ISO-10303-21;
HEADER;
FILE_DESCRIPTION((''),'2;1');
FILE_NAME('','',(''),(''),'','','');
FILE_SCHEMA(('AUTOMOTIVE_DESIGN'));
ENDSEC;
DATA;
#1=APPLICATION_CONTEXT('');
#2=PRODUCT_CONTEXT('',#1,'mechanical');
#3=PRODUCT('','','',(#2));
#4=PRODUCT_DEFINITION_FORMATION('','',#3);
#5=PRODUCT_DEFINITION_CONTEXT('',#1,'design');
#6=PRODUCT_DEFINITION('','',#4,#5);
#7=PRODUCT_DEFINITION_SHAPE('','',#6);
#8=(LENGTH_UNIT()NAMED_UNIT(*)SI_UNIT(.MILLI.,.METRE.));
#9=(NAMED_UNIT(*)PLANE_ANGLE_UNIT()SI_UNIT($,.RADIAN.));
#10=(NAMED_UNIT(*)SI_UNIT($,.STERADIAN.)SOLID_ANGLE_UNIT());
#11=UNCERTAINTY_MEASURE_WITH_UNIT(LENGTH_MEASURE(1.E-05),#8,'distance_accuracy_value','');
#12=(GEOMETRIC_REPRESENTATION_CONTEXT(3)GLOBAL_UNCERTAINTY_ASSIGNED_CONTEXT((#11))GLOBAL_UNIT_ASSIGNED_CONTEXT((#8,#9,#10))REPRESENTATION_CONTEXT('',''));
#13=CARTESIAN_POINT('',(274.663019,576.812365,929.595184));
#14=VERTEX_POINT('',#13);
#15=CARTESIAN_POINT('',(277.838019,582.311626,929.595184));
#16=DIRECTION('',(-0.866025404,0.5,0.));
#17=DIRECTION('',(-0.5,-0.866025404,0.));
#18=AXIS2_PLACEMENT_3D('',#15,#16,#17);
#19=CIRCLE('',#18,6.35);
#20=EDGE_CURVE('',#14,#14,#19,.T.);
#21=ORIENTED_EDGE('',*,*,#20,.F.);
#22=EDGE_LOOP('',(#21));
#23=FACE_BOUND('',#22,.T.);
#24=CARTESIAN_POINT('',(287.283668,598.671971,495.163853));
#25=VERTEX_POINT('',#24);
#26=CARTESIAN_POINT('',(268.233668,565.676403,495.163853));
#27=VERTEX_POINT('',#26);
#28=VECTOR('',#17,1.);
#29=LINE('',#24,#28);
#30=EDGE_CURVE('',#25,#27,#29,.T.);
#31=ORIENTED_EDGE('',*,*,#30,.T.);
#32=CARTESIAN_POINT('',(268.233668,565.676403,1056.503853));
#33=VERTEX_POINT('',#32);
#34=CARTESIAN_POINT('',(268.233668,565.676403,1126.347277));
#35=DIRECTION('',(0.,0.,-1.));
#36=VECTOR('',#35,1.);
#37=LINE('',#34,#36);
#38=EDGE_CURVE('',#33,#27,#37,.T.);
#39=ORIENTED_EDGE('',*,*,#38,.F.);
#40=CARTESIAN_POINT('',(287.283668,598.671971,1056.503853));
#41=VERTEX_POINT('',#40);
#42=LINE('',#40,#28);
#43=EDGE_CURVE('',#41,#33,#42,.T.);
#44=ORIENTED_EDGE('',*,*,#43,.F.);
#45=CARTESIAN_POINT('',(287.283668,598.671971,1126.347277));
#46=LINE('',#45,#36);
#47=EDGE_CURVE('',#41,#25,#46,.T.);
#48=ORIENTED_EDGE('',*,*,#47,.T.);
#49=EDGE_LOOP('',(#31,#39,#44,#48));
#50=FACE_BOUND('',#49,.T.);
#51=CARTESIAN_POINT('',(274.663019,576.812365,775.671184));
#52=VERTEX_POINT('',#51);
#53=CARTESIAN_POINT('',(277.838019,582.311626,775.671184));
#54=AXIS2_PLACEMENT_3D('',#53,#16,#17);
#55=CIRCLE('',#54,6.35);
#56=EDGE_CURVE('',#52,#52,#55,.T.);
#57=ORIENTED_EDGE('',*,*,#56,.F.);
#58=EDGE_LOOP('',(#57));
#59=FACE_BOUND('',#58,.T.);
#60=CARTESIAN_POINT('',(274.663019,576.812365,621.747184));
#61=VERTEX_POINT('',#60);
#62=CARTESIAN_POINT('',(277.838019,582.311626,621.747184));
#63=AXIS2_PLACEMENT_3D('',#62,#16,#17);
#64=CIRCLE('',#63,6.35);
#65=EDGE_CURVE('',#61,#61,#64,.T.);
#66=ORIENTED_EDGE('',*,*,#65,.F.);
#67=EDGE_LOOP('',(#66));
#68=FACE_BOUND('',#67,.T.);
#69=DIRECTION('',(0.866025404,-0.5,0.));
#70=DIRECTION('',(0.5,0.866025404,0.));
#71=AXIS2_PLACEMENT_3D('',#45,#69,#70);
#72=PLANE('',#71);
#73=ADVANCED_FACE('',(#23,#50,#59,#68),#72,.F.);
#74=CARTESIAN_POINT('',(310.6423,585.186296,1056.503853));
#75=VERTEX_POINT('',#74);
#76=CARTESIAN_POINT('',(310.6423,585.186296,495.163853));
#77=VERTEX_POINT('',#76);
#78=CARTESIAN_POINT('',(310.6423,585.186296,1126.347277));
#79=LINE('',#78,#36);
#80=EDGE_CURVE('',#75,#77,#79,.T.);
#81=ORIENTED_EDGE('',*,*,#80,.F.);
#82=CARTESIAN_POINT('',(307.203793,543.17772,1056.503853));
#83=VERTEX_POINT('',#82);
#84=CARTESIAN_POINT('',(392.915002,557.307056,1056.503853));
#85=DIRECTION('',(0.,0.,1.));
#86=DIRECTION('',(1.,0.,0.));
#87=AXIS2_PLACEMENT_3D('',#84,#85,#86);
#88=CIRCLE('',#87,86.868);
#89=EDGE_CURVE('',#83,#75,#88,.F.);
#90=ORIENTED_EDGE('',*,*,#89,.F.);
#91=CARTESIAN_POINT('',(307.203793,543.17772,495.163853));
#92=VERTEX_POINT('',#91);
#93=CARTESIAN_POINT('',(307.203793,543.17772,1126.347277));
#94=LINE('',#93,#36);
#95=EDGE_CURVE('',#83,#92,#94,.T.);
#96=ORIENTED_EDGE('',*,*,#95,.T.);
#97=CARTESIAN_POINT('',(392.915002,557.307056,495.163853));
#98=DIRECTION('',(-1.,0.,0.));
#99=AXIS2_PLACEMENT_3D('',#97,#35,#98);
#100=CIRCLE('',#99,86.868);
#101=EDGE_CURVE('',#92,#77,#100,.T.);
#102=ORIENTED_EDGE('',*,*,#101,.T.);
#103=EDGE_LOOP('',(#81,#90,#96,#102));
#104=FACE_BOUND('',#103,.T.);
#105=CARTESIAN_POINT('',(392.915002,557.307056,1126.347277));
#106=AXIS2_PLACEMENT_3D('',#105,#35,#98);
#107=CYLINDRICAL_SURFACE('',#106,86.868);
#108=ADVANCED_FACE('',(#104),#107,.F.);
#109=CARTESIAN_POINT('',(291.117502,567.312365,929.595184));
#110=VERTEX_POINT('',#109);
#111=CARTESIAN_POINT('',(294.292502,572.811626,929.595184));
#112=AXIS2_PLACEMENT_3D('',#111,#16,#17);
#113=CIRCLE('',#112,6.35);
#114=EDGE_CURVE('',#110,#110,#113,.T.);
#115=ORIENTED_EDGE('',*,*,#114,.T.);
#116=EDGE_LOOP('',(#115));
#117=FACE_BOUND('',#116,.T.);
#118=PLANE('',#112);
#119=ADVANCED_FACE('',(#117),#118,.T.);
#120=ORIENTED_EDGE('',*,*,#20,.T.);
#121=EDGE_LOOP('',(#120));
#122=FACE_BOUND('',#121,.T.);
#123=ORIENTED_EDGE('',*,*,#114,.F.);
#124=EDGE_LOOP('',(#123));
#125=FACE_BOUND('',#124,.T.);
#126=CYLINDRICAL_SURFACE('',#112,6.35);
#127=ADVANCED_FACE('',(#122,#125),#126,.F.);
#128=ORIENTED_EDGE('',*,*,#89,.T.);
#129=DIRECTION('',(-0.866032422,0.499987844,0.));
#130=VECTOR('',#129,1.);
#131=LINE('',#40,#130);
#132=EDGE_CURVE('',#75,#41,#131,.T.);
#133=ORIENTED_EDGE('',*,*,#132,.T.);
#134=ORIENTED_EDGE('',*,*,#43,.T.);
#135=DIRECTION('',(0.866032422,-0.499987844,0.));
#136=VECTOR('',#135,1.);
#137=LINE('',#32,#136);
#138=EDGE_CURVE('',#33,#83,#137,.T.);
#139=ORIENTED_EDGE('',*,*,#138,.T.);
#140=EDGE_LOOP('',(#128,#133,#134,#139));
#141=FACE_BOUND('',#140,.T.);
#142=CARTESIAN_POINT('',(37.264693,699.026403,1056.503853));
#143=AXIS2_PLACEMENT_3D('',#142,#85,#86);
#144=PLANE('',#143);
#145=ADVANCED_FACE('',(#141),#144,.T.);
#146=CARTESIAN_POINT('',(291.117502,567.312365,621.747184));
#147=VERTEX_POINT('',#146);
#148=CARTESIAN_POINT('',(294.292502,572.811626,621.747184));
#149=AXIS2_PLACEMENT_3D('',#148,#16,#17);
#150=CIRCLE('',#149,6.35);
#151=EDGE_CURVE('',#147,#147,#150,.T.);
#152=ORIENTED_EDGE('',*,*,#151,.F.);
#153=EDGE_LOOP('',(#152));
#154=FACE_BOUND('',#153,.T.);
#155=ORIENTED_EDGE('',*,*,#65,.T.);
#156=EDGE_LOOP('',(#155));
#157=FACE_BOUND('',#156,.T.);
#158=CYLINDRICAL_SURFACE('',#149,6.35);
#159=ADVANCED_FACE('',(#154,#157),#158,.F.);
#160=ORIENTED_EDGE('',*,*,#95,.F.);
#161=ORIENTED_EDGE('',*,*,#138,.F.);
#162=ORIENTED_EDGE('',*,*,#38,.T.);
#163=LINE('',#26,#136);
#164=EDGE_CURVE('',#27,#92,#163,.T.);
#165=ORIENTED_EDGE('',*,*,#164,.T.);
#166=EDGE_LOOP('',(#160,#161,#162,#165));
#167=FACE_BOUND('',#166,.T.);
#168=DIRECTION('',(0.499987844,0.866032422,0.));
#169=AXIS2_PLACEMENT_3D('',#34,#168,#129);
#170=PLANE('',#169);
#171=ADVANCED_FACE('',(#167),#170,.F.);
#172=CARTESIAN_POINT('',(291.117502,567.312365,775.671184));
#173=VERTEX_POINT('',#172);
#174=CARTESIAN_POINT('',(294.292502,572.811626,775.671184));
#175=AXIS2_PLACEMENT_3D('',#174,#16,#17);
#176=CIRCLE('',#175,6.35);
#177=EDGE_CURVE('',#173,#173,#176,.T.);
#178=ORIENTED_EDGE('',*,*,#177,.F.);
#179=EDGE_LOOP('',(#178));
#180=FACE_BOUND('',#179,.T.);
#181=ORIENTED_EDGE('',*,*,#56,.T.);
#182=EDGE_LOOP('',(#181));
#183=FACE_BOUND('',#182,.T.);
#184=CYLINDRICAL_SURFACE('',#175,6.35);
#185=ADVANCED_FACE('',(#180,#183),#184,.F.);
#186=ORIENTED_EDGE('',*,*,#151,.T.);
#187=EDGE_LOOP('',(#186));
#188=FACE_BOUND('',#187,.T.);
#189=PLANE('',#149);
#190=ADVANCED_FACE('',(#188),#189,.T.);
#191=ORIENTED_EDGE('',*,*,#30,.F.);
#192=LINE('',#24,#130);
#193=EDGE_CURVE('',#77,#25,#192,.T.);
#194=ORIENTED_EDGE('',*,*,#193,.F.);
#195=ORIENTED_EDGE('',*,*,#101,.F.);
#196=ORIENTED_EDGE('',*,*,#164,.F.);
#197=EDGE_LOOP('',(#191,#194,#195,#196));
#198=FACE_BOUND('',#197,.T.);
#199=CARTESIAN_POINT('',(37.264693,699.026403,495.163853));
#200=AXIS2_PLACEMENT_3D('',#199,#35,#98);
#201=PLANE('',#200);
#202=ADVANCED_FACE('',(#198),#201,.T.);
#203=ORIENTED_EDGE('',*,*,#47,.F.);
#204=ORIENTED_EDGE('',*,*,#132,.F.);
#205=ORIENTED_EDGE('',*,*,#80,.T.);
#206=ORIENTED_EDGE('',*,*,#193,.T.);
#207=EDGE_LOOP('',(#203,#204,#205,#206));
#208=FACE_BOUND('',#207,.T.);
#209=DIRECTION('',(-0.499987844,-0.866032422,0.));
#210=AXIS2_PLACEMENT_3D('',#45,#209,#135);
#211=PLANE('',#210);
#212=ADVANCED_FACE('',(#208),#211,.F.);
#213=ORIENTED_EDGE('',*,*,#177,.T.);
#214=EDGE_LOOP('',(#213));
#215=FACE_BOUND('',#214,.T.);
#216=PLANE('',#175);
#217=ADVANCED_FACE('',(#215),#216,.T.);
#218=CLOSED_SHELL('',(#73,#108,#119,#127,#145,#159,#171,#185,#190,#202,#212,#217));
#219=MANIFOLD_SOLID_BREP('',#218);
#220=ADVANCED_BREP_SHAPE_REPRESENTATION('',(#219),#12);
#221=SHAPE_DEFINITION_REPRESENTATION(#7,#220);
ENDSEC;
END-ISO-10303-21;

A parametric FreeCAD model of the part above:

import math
import FreeCAD as App
import Part
import Sketcher
Q = App.Units.Quantity

doc = App.newDocument("Part")
body = doc.addObject("PartDesign::Body", "Body")

sketch1 = body.newObject("Sketcher::SketchObject", "Sketch")
sketch1.AttachmentSupport = (doc.getObject("XY_Plane"), [""])
sketch1.MapMode = "FlatFace"
sketch1.AttachmentOffset = App.Placement(App.Vector(0, 0, 1031.103853), App.Rotation())
sketch1.addGeometry(Part.LineSegment(App.Vector(311, 585, 0), App.Vector(287, 599, 0)), False)
sketch1.addGeometry(Part.LineSegment(App.Vector(287, 599, 0), App.Vector(268, 566, 0)), False)
sketch1.addGeometry(Part.LineSegment(App.Vector(268, 566, 0), App.Vector(307, 543, 0)), False)
sketch1.addGeometry(Part.ArcOfCircle(Part.Circle(App.Vector(393, 557, 0), App.Vector(0, 0, 1), 87), math.radians(161), math.radians(189)), False)
sketch1.addConstraint(Sketcher.Constraint("Coincident", 0, 2, 1, 1))
sketch1.addConstraint(Sketcher.Constraint("Coincident", 1, 2, 2, 1))
sketch1.addConstraint(Sketcher.Constraint("Coincident", 2, 2, 3, 2))
sketch1.addConstraint(Sketcher.Constraint("Coincident", 3, 1, 0, 1))
sketch1.addConstraint(Sketcher.Constraint("Parallel", 0, 2))
sketch1.addConstraint(Sketcher.Constraint("Radius", 3, Q("3.42 in")))
sketch1.addConstraint(Sketcher.Constraint("Angle", 1, Q("-120 deg")))
sketch1.addConstraint(Sketcher.Constraint("Distance", 1, Q("1.5 in")))
sketch1.addConstraint(Sketcher.Constraint("DistanceX", -1, 1, 3, 3, 392.915002))
sketch1.addConstraint(Sketcher.Constraint("DistanceX", -1, 1, 3, 1, 310.6423))
sketch1.addConstraint(Sketcher.Constraint("Distance", 2, 44.998459))
sketch1.addConstraint(Sketcher.Constraint("DistanceX", -1, 1, 0, 2, 287.283668))
sketch1.addConstraint(Sketcher.Constraint("DistanceY", -1, 1, 0, 2, 598.671971))
pad1 = body.newObject("PartDesign::Pad", "Pad")
pad1.Profile = sketch1
pad1.Type = "TwoLengths"
pad1.Length = Q("1 in")
pad1.Length2 = Q("21.1 in")

sketch2 = body.newObject("Sketcher::SketchObject", "Sketch001")
sketch2.Placement = App.Placement(App.Vector(-43.769816, 25.270515, 0), App.Rotation(App.Vector(0, 0, 1), App.Vector(0.5, 0.866025404, 0), App.Vector(-0.866025404, 0.5, 0), "ZXY"))
sketch2.addGeometry(Part.Circle(App.Vector(776, 643, 0), App.Vector(0, 0, 1), 6), False)
sketch2.addGeometry(Part.Circle(App.Vector(930, 643, 0), App.Vector(0, 0, 1), 6), False)
sketch2.addGeometry(Part.Circle(App.Vector(622, 643, 0), App.Vector(0, 0, 1), 6), False)
sketch2.addConstraint(Sketcher.Constraint("Equal", 0, 1))
sketch2.addConstraint(Sketcher.Constraint("Equal", 1, 2))
sketch2.addConstraint(Sketcher.Constraint("Horizontal", 0, 3, 1, 3))
sketch2.addConstraint(Sketcher.Constraint("Horizontal", 1, 3, 2, 3))
sketch2.addConstraint(Sketcher.Constraint("Diameter", 0, Q("0.5 in")))
sketch2.addConstraint(Sketcher.Constraint("DistanceX", 0, 3, 1, 3, Q("6.06 in")))
sketch2.addConstraint(Sketcher.Constraint("DistanceX", 2, 3, 0, 3, Q("6.06 in")))
sketch2.addConstraint(Sketcher.Constraint("DistanceY", -1, 1, 0, 3, 643.215671))
sketch2.addConstraint(Sketcher.Constraint("DistanceX", -1, 1, 0, 3, 775.671184))
pocket1 = body.newObject("PartDesign::Pocket", "Pocket")
pocket1.Profile = sketch2
pocket1.Length = 19

doc.recompute()
